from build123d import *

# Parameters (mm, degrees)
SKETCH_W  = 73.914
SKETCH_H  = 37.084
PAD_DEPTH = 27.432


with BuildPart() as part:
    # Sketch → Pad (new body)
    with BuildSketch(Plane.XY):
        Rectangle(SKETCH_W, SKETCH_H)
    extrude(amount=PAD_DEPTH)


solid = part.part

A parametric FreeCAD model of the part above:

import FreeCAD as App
import Part
import Sketcher

V = App.Vector
Q = App.Units.Quantity

doc = App.newDocument("Part")
params = doc.addObject("Spreadsheet::Sheet", "Params")
for row, (alias, value) in enumerate([
    ("sketch1_width", "2.91 in"),
    ("sketch1_height", "1.46 in"),
    ("pad1_length", "1.08 in"),
], start=1):
    params.set(f"A{row}", alias)
    params.set(f"B{row}", "=" + value)
    params.setAlias(f"B{row}", alias)

body = doc.addObject("PartDesign::Body", "Body")

# Sketch on XY plane
sketch1 = doc.addObject("Sketcher::SketchObject", "Sketch")
body.addObject(sketch1)
sketch1.AttachmentSupport = (doc.XY_Plane, [""])
sketch1.MapMode = "FlatFace"
sketch1.addGeometry([
    Part.LineSegment(V(-37, 19, 0), V(-37, -19, 0)),
    Part.LineSegment(V(-37, -19, 0), V(37, -19, 0)),
    Part.LineSegment(V(37, -19, 0), V(37, 19, 0)),
    Part.LineSegment(V(37, 19, 0), V(-37, 19, 0)),
], False)
sketch1.addConstraint([
    Sketcher.Constraint("Coincident", 0, 2, 1, 1),
    Sketcher.Constraint("Coincident", 1, 2, 2, 1),
    Sketcher.Constraint("Coincident", 2, 2, 3, 1),
    Sketcher.Constraint("Coincident", 3, 2, 0, 1),
    Sketcher.Constraint("Vertical", 0),
    Sketcher.Constraint("Horizontal", 1),
    Sketcher.Constraint("Vertical", 2),
    Sketcher.Constraint("Horizontal", 3),
    Sketcher.Constraint("Symmetric", 0, 2, 2, 2, -1, 1),
    Sketcher.Constraint("DistanceX", 1, 1, 1, 2, Q("2.91 in")),
    Sketcher.Constraint("DistanceY", 0, 2, 0, 1, Q("1.46 in")),
])
sketch1.setExpression("Constraints[9]", "Params.sketch1_width")
sketch1.setExpression("Constraints[10]", "Params.sketch1_height")
pad1 = doc.addObject("PartDesign::Pad", "Pad")
body.addObject(pad1)
pad1.Profile = sketch1
pad1.setExpression("Length", "Params.pad1_length")

doc.recompute()
